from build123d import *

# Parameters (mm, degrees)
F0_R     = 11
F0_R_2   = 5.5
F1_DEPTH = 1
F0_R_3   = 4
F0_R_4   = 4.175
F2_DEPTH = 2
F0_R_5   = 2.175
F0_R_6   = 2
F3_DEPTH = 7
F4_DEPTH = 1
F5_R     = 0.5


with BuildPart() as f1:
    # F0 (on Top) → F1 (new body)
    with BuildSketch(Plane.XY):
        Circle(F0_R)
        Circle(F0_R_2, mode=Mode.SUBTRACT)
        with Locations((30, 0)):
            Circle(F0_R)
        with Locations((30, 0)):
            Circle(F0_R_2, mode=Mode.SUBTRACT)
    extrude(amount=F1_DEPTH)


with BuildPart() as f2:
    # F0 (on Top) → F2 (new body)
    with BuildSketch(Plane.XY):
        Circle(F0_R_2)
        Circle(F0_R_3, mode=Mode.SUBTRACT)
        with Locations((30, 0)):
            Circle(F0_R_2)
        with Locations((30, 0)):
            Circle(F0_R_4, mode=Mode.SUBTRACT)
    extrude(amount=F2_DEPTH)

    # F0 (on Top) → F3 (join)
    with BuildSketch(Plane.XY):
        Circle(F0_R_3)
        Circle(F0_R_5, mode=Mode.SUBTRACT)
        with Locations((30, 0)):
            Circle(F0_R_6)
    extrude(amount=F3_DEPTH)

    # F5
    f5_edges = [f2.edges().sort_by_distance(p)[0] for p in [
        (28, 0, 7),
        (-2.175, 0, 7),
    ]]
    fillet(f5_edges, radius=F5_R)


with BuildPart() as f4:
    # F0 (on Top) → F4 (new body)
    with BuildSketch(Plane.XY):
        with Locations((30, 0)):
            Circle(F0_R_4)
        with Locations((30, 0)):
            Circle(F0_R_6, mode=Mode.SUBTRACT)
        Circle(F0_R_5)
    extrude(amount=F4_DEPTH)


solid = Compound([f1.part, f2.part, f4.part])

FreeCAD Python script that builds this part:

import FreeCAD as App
import Part
import Sketcher
from FreeCAD import Vector


def edges_at(feature, points):
    """Names of the edges that pass closest to the given points."""
    edges = feature.Shape.Edges
    near = lambda p: min(range(len(edges)), key=lambda i: edges[i].distToShape(Part.Vertex(*p))[0])
    return sorted({f"Edge{near(p) + 1}" for p in points})

doc = App.newDocument("Part")
params = doc.addObject("Spreadsheet::Sheet", "Params")
for row, (alias, value) in enumerate([
    ("sketch1_diameter", "22 mm"),
    ("sketch1_diameter2", "11 mm"),
    ("pad1_length", "1 mm"),
    ("sketch2_diameter", "11 mm"),
    ("sketch2_diameter2", "8 mm"),
    ("sketch2_diameter3", "8.35 mm"),
    ("pad2_length", "2 mm"),
    ("sketch3_diameter", "8 mm"),
    ("sketch3_diameter2", "4 mm"),
    ("sketch3_diameter3", "4.35 mm"),
    ("pad3_length", "7 mm"),
    ("fillet_radius", "0.5 mm"),
    ("sketch4_diameter", "4 mm"),
    ("sketch4_diameter2", "8.35 mm"),
    ("sketch4_diameter3", "4.35 mm"),
    ("pad4_length", "1 mm"),
], start=1):
    params.set(f"A{row}", alias)
    params.set(f"B{row}", "=" + value)
    params.setAlias(f"B{row}", alias)

body = doc.addObject("PartDesign::Body", "Body")
body.AllowCompound = True

sketch1 = body.newObject("Sketcher::SketchObject", "Sketch")
sketch1.AttachmentSupport = (doc.getObject("XY_Plane"), [""])
sketch1.MapMode = "FlatFace"
sketch1.addGeometry([
    Part.Circle(Vector(0, 0, 0), Vector(0, 0, 1), 11),
    Part.Circle(Vector(0, 0, 0), Vector(0, 0, 1), 6),
    Part.Circle(Vector(30, 0, 0), Vector(0, 0, 1), 11),
    Part.Circle(Vector(30, 0, 0), Vector(0, 0, 1), 6),
], False)
sketch1.addConstraint([
    Sketcher.Constraint("Coincident", 0, 3, -1, 1),
    Sketcher.Constraint("Coincident", 1, 3, -1, 1),
    Sketcher.Constraint("Coincident", 3, 3, 2, 3),
    Sketcher.Constraint("Equal", 0, 2),
    Sketcher.Constraint("Equal", 1, 3),
    Sketcher.Constraint("PointOnObject", 2, 3, -1),
    Sketcher.Constraint("Diameter", 0, 22.0),
    Sketcher.Constraint("Diameter", 1, 11.0),
    Sketcher.Constraint("DistanceX", -1, 1, 2, 3, 30.0),
])
sketch1.setExpression("Constraints[6]", "Params.sketch1_diameter")
sketch1.setExpression("Constraints[7]", "Params.sketch1_diameter2")
pad1 = body.newObject("PartDesign::Pad", "Pad")
pad1.Profile = sketch1
pad1.setExpression("Length", "Params.pad1_length")
body2 = doc.addObject("PartDesign::Body", "Body001")
body2.AllowCompound = True

sketch2 = body2.newObject("Sketcher::SketchObject", "Sketch001")
sketch2.AttachmentSupport = (doc.getObject("XY_Plane001"), [""])
sketch2.MapMode = "FlatFace"
sketch2.addGeometry([
    Part.Circle(Vector(0, 0, 0), Vector(0, 0, 1), 5.5),
    Part.Circle(Vector(0, 0, 0), Vector(0, 0, 1), 4),
    Part.Circle(Vector(30, 0, 0), Vector(0, 0, 1), 5.5),
    Part.Circle(Vector(30, 0, 0), Vector(0, 0, 1), 4.2),
], False)
sketch2.addConstraint([
    Sketcher.Constraint("Coincident", 0, 3, -1, 1),
    Sketcher.Constraint("Coincident", 1, 3, -1, 1),
    Sketcher.Constraint("Coincident", 3, 3, 2, 3),
    Sketcher.Constraint("Equal", 0, 2),
    Sketcher.Constraint("PointOnObject", 2, 3, -1),
    Sketcher.Constraint("Diameter", 0, 11.0),
    Sketcher.Constraint("Diameter", 1, 8.0),
    Sketcher.Constraint("Diameter", 3, 8.35),
    Sketcher.Constraint("DistanceX", -1, 1, 2, 3, 30.0),
])
sketch2.setExpression("Constraints[5]", "Params.sketch2_diameter")
sketch2.setExpression("Constraints[6]", "Params.sketch2_diameter2")
sketch2.setExpression("Constraints[7]", "Params.sketch2_diameter3")
pad2 = body2.newObject("PartDesign::Pad", "Pad001")
pad2.Profile = sketch2
pad2.setExpression("Length", "Params.pad2_length")

sketch3 = body2.newObject("Sketcher::SketchObject", "Sketch002")
sketch3.AttachmentSupport = (doc.getObject("XY_Plane001"), [""])
sketch3.MapMode = "FlatFace"
sketch3.addGeometry([
    Part.Circle(Vector(0, 0, 0), Vector(0, 0, 1), 4),
    Part.Circle(Vector(0, 0, 0), Vector(0, 0, 1), 2.2),
    Part.Circle(Vector(30, 0, 0), Vector(0, 0, 1), 2),
], False)
sketch3.addConstraint([
    Sketcher.Constraint("Coincident", 0, 3, -1, 1),
    Sketcher.Constraint("Coincident", 1, 3, -1, 1),
    Sketcher.Constraint("PointOnObject", 2, 3, -1),
    Sketcher.Constraint("Diameter", 0, 8.0),
    Sketcher.Constraint("Diameter", 2, 4.0),
    Sketcher.Constraint("Diameter", 1, 4.35),
    Sketcher.Constraint("DistanceX", -1, 1, 2, 3, 30.0),
])
sketch3.setExpression("Constraints[3]", "Params.sketch3_diameter")
sketch3.setExpression("Constraints[4]", "Params.sketch3_diameter2")
sketch3.setExpression("Constraints[5]", "Params.sketch3_diameter3")
pad3 = body2.newObject("PartDesign::Pad", "Pad002")
pad3.Profile = sketch3
pad3.setExpression("Length", "Params.pad3_length")
doc.recompute()

fillet = body2.newObject("PartDesign::Fillet", "Fillet")
fillet.Base = (pad3, edges_at(pad3, [(28, 0, 7), (-2.175, 0, 7)]))
fillet.setExpression("Radius", "Params.fillet_radius")
body3 = doc.addObject("PartDesign::Body", "Body002")
body3.AllowCompound = True

sketch4 = body3.newObject("Sketcher::SketchObject", "Sketch003")
sketch4.AttachmentSupport = (doc.getObject("XY_Plane002"), [""])
sketch4.MapMode = "FlatFace"
sketch4.addGeometry([
    Part.Circle(Vector(30, 0, 0), Vector(0, 0, 1), 4.2),
    Part.Circle(Vector(30, 0, 0), Vector(0, 0, 1), 2),
    Part.Circle(Vector(0, 0, 0), Vector(0, 0, 1), 2.2),
], False)
sketch4.addConstraint([
    Sketcher.Constraint("Coincident", 2, 3, -1, 1),
    Sketcher.Constraint("Coincident", 1, 3, 0, 3),
    Sketcher.Constraint("PointOnObject", 0, 3, -1),
    Sketcher.Constraint("Diameter", 1, 4.0),
    Sketcher.Constraint("Diameter", 0, 8.35),
    Sketcher.Constraint("Diameter", 2, 4.35),
    Sketcher.Constraint("DistanceX", -1, 1, 0, 3, 30.0),
])
sketch4.setExpression("Constraints[3]", "Params.sketch4_diameter")
sketch4.setExpression("Constraints[4]", "Params.sketch4_diameter2")
sketch4.setExpression("Constraints[5]", "Params.sketch4_diameter3")
pad4 = body3.newObject("PartDesign::Pad", "Pad003")
pad4.Profile = sketch4
pad4.setExpression("Length", "Params.pad4_length")

doc.recompute()
